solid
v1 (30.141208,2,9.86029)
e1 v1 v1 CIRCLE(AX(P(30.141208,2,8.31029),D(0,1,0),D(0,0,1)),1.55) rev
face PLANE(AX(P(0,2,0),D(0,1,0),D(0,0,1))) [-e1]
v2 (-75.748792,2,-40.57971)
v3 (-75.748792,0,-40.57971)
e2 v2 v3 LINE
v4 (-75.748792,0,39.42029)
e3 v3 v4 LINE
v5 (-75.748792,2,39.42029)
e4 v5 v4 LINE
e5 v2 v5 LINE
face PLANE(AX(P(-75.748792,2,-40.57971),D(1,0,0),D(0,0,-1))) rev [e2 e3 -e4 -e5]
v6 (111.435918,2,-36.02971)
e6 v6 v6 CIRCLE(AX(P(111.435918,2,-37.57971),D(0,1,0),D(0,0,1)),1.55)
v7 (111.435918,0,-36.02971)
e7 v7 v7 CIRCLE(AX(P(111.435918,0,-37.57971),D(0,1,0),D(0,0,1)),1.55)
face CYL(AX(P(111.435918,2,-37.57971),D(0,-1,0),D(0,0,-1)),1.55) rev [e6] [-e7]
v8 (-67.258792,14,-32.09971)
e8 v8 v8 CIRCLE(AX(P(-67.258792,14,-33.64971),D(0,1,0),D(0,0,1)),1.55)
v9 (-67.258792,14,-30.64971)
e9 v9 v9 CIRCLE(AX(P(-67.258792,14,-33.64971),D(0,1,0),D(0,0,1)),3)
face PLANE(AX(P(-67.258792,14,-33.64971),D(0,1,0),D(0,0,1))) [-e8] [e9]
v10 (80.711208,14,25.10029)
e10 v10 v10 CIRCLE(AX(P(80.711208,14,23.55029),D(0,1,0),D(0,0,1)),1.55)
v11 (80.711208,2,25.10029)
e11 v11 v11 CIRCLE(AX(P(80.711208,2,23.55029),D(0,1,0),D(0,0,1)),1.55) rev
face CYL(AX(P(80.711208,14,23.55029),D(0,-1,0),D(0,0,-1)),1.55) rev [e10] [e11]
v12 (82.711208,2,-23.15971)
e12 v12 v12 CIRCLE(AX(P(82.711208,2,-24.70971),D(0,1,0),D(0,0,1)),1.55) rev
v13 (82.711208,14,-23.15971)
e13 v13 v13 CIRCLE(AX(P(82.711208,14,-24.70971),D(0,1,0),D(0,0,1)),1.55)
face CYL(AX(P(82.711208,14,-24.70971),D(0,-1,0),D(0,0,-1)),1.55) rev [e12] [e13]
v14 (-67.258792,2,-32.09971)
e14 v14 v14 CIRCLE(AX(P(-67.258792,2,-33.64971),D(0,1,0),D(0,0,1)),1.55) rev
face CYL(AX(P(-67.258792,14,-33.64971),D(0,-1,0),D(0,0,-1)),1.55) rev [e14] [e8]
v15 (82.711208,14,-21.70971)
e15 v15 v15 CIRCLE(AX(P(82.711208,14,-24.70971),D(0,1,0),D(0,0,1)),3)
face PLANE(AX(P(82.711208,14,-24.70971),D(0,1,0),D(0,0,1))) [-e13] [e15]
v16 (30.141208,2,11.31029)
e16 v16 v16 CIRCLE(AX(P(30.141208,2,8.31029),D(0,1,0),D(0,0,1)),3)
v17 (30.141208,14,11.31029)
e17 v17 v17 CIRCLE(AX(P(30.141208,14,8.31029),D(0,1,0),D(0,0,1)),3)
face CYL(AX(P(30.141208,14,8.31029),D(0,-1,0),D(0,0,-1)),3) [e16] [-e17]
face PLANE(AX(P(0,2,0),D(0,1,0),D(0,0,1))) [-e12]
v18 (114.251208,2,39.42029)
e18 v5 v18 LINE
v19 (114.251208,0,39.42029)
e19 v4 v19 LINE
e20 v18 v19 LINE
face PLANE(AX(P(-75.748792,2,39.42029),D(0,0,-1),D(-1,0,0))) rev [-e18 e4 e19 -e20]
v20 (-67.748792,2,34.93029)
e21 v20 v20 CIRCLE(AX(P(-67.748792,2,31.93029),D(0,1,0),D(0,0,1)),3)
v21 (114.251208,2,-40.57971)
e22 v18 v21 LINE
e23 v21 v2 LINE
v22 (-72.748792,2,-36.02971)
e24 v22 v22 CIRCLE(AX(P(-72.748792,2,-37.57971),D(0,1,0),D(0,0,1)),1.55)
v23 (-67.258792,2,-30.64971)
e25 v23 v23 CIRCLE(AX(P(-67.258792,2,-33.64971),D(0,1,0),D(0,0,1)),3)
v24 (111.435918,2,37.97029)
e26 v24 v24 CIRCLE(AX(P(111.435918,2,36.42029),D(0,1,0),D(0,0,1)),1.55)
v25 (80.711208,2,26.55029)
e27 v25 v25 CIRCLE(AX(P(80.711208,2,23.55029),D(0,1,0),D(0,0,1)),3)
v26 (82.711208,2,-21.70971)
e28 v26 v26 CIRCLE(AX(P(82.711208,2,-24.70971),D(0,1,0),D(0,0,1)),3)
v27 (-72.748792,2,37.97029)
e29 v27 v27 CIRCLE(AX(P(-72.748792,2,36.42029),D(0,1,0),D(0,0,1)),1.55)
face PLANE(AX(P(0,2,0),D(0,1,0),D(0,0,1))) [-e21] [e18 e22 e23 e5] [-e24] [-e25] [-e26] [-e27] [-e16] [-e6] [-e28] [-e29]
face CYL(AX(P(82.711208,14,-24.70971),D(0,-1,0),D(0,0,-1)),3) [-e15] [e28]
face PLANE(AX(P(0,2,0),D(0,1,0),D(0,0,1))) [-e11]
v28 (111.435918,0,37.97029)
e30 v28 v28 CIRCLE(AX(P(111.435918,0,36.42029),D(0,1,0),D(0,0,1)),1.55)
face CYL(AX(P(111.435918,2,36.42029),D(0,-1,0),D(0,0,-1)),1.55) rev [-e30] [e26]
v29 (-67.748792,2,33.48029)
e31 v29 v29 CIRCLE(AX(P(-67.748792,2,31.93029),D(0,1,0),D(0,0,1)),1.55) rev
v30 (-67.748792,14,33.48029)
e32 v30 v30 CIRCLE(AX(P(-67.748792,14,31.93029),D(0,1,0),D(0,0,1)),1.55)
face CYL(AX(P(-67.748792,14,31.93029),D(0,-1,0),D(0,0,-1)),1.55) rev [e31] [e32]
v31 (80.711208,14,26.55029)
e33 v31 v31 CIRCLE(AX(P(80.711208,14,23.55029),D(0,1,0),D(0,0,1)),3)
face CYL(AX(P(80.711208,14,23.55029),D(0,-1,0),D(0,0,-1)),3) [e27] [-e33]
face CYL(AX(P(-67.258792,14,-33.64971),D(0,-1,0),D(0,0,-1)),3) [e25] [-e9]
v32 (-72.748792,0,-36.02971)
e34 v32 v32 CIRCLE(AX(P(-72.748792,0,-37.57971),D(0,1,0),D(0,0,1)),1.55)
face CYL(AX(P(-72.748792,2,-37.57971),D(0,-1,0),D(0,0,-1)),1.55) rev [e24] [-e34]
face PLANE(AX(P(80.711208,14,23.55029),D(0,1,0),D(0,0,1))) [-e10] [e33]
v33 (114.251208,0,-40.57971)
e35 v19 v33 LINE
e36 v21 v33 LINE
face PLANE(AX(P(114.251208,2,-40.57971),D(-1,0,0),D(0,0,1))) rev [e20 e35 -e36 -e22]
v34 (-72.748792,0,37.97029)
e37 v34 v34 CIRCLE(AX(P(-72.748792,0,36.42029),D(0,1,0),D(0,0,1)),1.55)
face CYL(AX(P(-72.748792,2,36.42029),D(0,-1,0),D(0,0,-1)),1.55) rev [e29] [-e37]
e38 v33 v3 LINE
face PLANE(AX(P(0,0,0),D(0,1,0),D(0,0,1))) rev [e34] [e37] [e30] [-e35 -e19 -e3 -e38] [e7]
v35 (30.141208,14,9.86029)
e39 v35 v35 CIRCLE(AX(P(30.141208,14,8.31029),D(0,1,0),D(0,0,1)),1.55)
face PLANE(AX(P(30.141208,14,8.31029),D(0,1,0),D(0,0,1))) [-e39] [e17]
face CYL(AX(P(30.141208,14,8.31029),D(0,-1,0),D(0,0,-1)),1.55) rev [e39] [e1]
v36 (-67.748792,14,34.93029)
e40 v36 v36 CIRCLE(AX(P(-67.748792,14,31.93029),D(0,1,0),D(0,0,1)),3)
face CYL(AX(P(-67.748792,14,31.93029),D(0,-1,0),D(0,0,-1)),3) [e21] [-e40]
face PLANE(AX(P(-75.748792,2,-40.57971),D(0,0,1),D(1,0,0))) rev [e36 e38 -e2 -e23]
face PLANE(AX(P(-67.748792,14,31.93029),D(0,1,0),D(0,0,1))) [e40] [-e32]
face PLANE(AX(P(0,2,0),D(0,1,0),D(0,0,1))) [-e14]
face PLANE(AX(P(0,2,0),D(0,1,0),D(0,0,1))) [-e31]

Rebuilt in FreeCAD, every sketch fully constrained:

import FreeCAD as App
import Part
import Sketcher
from FreeCAD import Vector
Q = App.Units.Quantity

doc = App.newDocument("Part")
body = doc.addObject("PartDesign::Body", "Body")

sketch1 = doc.addObject("Sketcher::SketchObject", "Sketch")
body.addObject(sketch1)
sketch1.AttachmentSupport = (doc.XZ_Plane, [""])
sketch1.MapMode = "FlatFace"
sketch1.addGeometry([
    Part.LineSegment(Vector(-75.7, -40.6, 0), Vector(-75.7, 39.4, 0)),
    Part.LineSegment(Vector(-75.7, 39.4, 0), Vector(114.3, 39.4, 0)),
    Part.LineSegment(Vector(114.3, 39.4, 0), Vector(114.3, -40.6, 0)),
    Part.LineSegment(Vector(114.3, -40.6, 0), Vector(-75.7, -40.6, 0)),
    Part.Circle(Vector(-72.7, 36.4, 0), Vector(0, 0, 1), 1.6),
    Part.Circle(Vector(111.4, 36.4, 0), Vector(0, 0, 1), 1.6),
    Part.Circle(Vector(-72.7, -37.6, 0), Vector(0, 0, 1), 1.6),
    Part.Circle(Vector(111.4, -37.6, 0), Vector(0, 0, 1), 1.6),
], False)
sketch1.addConstraint([
    Sketcher.Constraint("Coincident", 0, 2, 1, 1),
    Sketcher.Constraint("Coincident", 1, 2, 2, 1),
    Sketcher.Constraint("Coincident", 2, 2, 3, 1),
    Sketcher.Constraint("Coincident", 3, 2, 0, 1),
    Sketcher.Constraint("Vertical", 0),
    Sketcher.Constraint("Horizontal", 1),
    Sketcher.Constraint("Vertical", 2),
    Sketcher.Constraint("Horizontal", 3),
    Sketcher.Constraint("Equal", 4, 5),
    Sketcher.Constraint("Equal", 5, 6),
    Sketcher.Constraint("Equal", 6, 7),
    Sketcher.Constraint("Horizontal", 4, 3, 5, 3),
    Sketcher.Constraint("Horizontal", 6, 3, 7, 3),
    Sketcher.Constraint("Vertical", 4, 3, 6, 3),
    Sketcher.Constraint("Vertical", 5, 3, 7, 3),
    Sketcher.Constraint("Diameter", 4, Q("3.1 mm")),
    Sketcher.Constraint("DistanceX", 1, 1, 1, 2, Q("190 mm")),
    Sketcher.Constraint("DistanceY", 0, 1, 0, 2, Q("80 mm")),
    Sketcher.Constraint("DistanceY", 6, 3, 4, 3, Q("74 mm")),
    Sketcher.Constraint("DistanceX", 0, 2, 4, 3, Q("3 mm")),
    Sketcher.Constraint("DistanceY", 4, 3, 0, 2, Q("3 mm")),
    Sketcher.Constraint("DistanceY", -1, 1, 4, 3, Q("36.42029 mm")),
    Sketcher.Constraint("DistanceX", 4, 3, 5, 3, Q("184.18471 mm")),
    Sketcher.Constraint("DistanceX", 4, 3, -1, 1, Q("72.748792 mm")),
])
pad1 = doc.addObject("PartDesign::Pad", "Pad")
body.addObject(pad1)
pad1.Profile = sketch1
pad1.Length = 2
pad1.Reversed = True

sketch2 = doc.addObject("Sketcher::SketchObject", "Sketch001")
body.addObject(sketch2)
sketch2.AttachmentSupport = (doc.XZ_Plane, [""])
sketch2.MapMode = "FlatFace"
sketch2.AttachmentOffset = App.Placement(Vector(0, 0, -2), App.Rotation())
sketch2.addGeometry([
    Part.Circle(Vector(82.7, -24.7, 0), Vector(0, 0, 1), 3),
    Part.Circle(Vector(82.7, -24.7, 0), Vector(0, 0, 1), 1.6),
    Part.Circle(Vector(80.7, 23.6, 0), Vector(0, 0, 1), 3),
    Part.Circle(Vector(80.7, 23.6, 0), Vector(0, 0, 1), 1.6),
    Part.Circle(Vector(30.1, 8.3, 0), Vector(0, 0, 1), 3),
    Part.Circle(Vector(30.1, 8.3, 0), Vector(0, 0, 1), 1.6),
    Part.Circle(Vector(-67.3, -33.6, 0), Vector(0, 0, 1), 3),
    Part.Circle(Vector(-67.3, -33.6, 0), Vector(0, 0, 1), 1.6),
    Part.Circle(Vector(-67.7, 31.9, 0), Vector(0, 0, 1), 3),
    Part.Circle(Vector(-67.7, 31.9, 0), Vector(0, 0, 1), 1.6),
], False)
sketch2.addConstraint([
    Sketcher.Constraint("Coincident", 1, 3, 0, 3),
    Sketcher.Constraint("Coincident", 3, 3, 2, 3),
    Sketcher.Constraint("Coincident", 5, 3, 4, 3),
    Sketcher.Constraint("Coincident", 7, 3, 6, 3),
    Sketcher.Constraint("Coincident", 9, 3, 8, 3),
    Sketcher.Constraint("Equal", 0, 2),
    Sketcher.Constraint("Equal", 1, 3),
    Sketcher.Constraint("Equal", 2, 4),
    Sketcher.Constraint("Equal", 3, 5),
    Sketcher.Constraint("Equal", 4, 6),
    Sketcher.Constraint("Equal", 5, 7),
    Sketcher.Constraint("Equal", 6, 8),
    Sketcher.Constraint("Equal", 7, 9),
    Sketcher.Constraint("Diameter", 0, Q("6 mm")),
    Sketcher.Constraint("Diameter", 1, Q("3.1 mm")),
    Sketcher.Constraint("DistanceX", 2, 3, 0, 3, Q("2 mm")),
    Sketcher.Constraint("DistanceX", 6, 3, 4, 3, Q("97.4 mm")),
    Sketcher.Constraint("DistanceY", 6, 3, 2, 3, Q("57.2 mm")),
    Sketcher.Constraint("DistanceY", 0, 3, 2, 3, Q("48.26 mm")),
    Sketcher.Constraint("DistanceX", 4, 3, 2, 3, Q("50.57 mm")),
    Sketcher.Constraint("DistanceY", 4, 3, 2, 3, Q("15.24 mm")),
    Sketcher.Constraint("DistanceX", 8, 3, 6, 3, Q("0.49 mm")),
    Sketcher.Constraint("DistanceY", 6, 3, 8, 3, Q("65.58 mm")),
    Sketcher.Constraint("DistanceY", 0, 3, -1, 1, Q("24.70971 mm")),
    Sketcher.Constraint("DistanceX", -1, 1, 0, 3, Q("82.711208 mm")),
])
pad2 = doc.addObject("PartDesign::Pad", "Pad001")
body.addObject(pad2)
pad2.Profile = sketch2
pad2.Length = 12
pad2.Reversed = True

doc.recompute()
